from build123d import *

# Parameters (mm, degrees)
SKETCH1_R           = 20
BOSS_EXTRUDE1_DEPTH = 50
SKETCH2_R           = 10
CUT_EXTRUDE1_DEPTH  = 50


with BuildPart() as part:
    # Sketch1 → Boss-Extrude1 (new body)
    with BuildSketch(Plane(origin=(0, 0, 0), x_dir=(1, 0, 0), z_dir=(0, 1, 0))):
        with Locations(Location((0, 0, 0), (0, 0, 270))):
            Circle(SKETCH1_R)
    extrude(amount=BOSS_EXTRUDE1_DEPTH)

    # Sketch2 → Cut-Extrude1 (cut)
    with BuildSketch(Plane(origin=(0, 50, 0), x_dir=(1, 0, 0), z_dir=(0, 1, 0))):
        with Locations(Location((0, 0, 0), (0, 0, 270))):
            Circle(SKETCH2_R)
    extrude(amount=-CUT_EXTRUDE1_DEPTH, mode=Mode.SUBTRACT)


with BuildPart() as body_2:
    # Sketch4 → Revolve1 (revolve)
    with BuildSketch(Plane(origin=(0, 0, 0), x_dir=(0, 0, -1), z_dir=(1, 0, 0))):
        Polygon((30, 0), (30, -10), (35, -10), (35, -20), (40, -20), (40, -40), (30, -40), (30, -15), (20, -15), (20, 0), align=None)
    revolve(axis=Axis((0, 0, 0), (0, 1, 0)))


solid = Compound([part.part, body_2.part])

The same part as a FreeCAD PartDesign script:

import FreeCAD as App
import Part
import Sketcher

doc = App.newDocument("Part")
body = doc.addObject("PartDesign::Body", "Body")

# Sketch on XZ plane
sketch1 = doc.addObject("Sketcher::SketchObject", "Sketch")
body.addObject(sketch1)
sketch1.AttachmentSupport = (doc.XZ_Plane, [""])
sketch1.MapMode = "FlatFace"
sketch1.addGeometry(Part.Circle(App.Vector(0, 0, 0), App.Vector(0, 0, 1), 20), False)
sketch1.addConstraint(Sketcher.Constraint("Coincident", 0, 3, -1, 1))
sketch1.addConstraint(Sketcher.Constraint("Diameter", 0, 40.0))
pad1 = doc.addObject("PartDesign::Pad", "Pad")
body.addObject(pad1)
pad1.Profile = sketch1
pad1.Length = 50
pad1.Reversed = True

# Sketch on XZ plane
sketch2 = doc.addObject("Sketcher::SketchObject", "Sketch001")
body.addObject(sketch2)
sketch2.AttachmentSupport = (doc.XZ_Plane, [""])
sketch2.MapMode = "FlatFace"
sketch2.AttachmentOffset = App.Placement(App.Vector(0, 0, -50), App.Rotation())
sketch2.addGeometry(Part.Circle(App.Vector(0, 0, 0), App.Vector(0, 0, 1), 10), False)
sketch2.addConstraint(Sketcher.Constraint("Coincident", 0, 3, -1, 1))
sketch2.addConstraint(Sketcher.Constraint("Diameter", 0, 20.0))
pocket1 = doc.addObject("PartDesign::Pocket", "Pocket")
body.addObject(pocket1)
pocket1.Profile = sketch2
pocket1.Length = 50
pocket1.Reversed = True
body2 = doc.addObject("PartDesign::Body", "Body001")

# Sketch on YZ plane
sketch3 = doc.addObject("Sketcher::SketchObject", "Sketch002")
body2.addObject(sketch3)
sketch3.AttachmentSupport = (doc.getObject("YZ_Plane001"), [""])
sketch3.MapMode = "FlatFace"
sketch3.addGeometry(Part.LineSegment(App.Vector(-10, -30, 0), App.Vector(0, -30, 0)), False)
sketch3.addGeometry(Part.LineSegment(App.Vector(0, -30, 0), App.Vector(0, -20, 0)), False)
sketch3.addGeometry(Part.LineSegment(App.Vector(0, -20, 0), App.Vector(-15, -20, 0)), False)
sketch3.addGeometry(Part.LineSegment(App.Vector(-15, -20, 0), App.Vector(-15, -30, 0)), False)
sketch3.addGeometry(Part.LineSegment(App.Vector(-15, -30, 0), App.Vector(-40, -30, 0)), False)
sketch3.addGeometry(Part.LineSegment(App.Vector(-40, -30, 0), App.Vector(-40, -40, 0)), False)
sketch3.addGeometry(Part.LineSegment(App.Vector(-40, -40, 0), App.Vector(-20, -40, 0)), False)
sketch3.addGeometry(Part.LineSegment(App.Vector(-20, -40, 0), App.Vector(-20, -35, 0)), False)
sketch3.addGeometry(Part.LineSegment(App.Vector(-20, -35, 0), App.Vector(-10, -35, 0)), False)
sketch3.addGeometry(Part.LineSegment(App.Vector(-10, -35, 0), App.Vector(-10, -30, 0)), False)
sketch3.addConstraint(Sketcher.Constraint("Coincident", 0, 2, 1, 1))
sketch3.addConstraint(Sketcher.Constraint("Coincident", 1, 2, 2, 1))
sketch3.addConstraint(Sketcher.Constraint("Coincident", 2, 2, 3, 1))
sketch3.addConstraint(Sketcher.Constraint("Coincident", 3, 2, 4, 1))
sketch3.addConstraint(Sketcher.Constraint("Coincident", 4, 2, 5, 1))
sketch3.addConstraint(Sketcher.Constraint("Coincident", 5, 2, 6, 1))
sketch3.addConstraint(Sketcher.Constraint("Coincident", 6, 2, 7, 1))
sketch3.addConstraint(Sketcher.Constraint("Coincident", 7, 2, 8, 1))
sketch3.addConstraint(Sketcher.Constraint("Coincident", 8, 2, 9, 1))
sketch3.addConstraint(Sketcher.Constraint("Coincident", 9, 2, 0, 1))
sketch3.addConstraint(Sketcher.Constraint("Horizontal", 0))
sketch3.addConstraint(Sketcher.Constraint("Vertical", 1))
sketch3.addConstraint(Sketcher.Constraint("Horizontal", 2))
sketch3.addConstraint(Sketcher.Constraint("Vertical", 3))
sketch3.addConstraint(Sketcher.Constraint("Horizontal", 4))
sketch3.addConstraint(Sketcher.Constraint("Vertical", 5))
sketch3.addConstraint(Sketcher.Constraint("Horizontal", 6))
sketch3.addConstraint(Sketcher.Constraint("Vertical", 7))
sketch3.addConstraint(Sketcher.Constraint("Horizontal", 8))
sketch3.addConstraint(Sketcher.Constraint("Vertical", 9))
sketch3.addConstraint(Sketcher.Constraint("PointOnObject", 0, 2, -2))
sketch3.addConstraint(Sketcher.Constraint("Horizontal", 0, 2, 3, 2))
sketch3.addConstraint(Sketcher.Constraint("Equal", 0, 8))
sketch3.addConstraint(Sketcher.Constraint("Equal", 8, 1))
sketch3.addConstraint(Sketcher.Constraint("Equal", 3, 5))
sketch3.addConstraint(Sketcher.Constraint("Equal", 7, 9))
sketch3.addConstraint(Sketcher.Constraint("DistanceX", 0, 1, 0, 2, 10.0))
sketch3.addConstraint(Sketcher.Constraint("DistanceX", 2, 2, 2, 1, 15.0))
sketch3.addConstraint(Sketcher.Constraint("DistanceX", 4, 2, 4, 1, 25.0))
sketch3.addConstraint(Sketcher.Constraint("DistanceY", 0, 2, -1, 1, 30.0))
revolution = doc.addObject("PartDesign::Revolution", "Revolution")
body2.addObject(revolution)
revolution.Profile = sketch3
revolution.ReferenceAxis = (sketch3, ["H_Axis"])
revolution.Angle = 360

doc.recompute()
